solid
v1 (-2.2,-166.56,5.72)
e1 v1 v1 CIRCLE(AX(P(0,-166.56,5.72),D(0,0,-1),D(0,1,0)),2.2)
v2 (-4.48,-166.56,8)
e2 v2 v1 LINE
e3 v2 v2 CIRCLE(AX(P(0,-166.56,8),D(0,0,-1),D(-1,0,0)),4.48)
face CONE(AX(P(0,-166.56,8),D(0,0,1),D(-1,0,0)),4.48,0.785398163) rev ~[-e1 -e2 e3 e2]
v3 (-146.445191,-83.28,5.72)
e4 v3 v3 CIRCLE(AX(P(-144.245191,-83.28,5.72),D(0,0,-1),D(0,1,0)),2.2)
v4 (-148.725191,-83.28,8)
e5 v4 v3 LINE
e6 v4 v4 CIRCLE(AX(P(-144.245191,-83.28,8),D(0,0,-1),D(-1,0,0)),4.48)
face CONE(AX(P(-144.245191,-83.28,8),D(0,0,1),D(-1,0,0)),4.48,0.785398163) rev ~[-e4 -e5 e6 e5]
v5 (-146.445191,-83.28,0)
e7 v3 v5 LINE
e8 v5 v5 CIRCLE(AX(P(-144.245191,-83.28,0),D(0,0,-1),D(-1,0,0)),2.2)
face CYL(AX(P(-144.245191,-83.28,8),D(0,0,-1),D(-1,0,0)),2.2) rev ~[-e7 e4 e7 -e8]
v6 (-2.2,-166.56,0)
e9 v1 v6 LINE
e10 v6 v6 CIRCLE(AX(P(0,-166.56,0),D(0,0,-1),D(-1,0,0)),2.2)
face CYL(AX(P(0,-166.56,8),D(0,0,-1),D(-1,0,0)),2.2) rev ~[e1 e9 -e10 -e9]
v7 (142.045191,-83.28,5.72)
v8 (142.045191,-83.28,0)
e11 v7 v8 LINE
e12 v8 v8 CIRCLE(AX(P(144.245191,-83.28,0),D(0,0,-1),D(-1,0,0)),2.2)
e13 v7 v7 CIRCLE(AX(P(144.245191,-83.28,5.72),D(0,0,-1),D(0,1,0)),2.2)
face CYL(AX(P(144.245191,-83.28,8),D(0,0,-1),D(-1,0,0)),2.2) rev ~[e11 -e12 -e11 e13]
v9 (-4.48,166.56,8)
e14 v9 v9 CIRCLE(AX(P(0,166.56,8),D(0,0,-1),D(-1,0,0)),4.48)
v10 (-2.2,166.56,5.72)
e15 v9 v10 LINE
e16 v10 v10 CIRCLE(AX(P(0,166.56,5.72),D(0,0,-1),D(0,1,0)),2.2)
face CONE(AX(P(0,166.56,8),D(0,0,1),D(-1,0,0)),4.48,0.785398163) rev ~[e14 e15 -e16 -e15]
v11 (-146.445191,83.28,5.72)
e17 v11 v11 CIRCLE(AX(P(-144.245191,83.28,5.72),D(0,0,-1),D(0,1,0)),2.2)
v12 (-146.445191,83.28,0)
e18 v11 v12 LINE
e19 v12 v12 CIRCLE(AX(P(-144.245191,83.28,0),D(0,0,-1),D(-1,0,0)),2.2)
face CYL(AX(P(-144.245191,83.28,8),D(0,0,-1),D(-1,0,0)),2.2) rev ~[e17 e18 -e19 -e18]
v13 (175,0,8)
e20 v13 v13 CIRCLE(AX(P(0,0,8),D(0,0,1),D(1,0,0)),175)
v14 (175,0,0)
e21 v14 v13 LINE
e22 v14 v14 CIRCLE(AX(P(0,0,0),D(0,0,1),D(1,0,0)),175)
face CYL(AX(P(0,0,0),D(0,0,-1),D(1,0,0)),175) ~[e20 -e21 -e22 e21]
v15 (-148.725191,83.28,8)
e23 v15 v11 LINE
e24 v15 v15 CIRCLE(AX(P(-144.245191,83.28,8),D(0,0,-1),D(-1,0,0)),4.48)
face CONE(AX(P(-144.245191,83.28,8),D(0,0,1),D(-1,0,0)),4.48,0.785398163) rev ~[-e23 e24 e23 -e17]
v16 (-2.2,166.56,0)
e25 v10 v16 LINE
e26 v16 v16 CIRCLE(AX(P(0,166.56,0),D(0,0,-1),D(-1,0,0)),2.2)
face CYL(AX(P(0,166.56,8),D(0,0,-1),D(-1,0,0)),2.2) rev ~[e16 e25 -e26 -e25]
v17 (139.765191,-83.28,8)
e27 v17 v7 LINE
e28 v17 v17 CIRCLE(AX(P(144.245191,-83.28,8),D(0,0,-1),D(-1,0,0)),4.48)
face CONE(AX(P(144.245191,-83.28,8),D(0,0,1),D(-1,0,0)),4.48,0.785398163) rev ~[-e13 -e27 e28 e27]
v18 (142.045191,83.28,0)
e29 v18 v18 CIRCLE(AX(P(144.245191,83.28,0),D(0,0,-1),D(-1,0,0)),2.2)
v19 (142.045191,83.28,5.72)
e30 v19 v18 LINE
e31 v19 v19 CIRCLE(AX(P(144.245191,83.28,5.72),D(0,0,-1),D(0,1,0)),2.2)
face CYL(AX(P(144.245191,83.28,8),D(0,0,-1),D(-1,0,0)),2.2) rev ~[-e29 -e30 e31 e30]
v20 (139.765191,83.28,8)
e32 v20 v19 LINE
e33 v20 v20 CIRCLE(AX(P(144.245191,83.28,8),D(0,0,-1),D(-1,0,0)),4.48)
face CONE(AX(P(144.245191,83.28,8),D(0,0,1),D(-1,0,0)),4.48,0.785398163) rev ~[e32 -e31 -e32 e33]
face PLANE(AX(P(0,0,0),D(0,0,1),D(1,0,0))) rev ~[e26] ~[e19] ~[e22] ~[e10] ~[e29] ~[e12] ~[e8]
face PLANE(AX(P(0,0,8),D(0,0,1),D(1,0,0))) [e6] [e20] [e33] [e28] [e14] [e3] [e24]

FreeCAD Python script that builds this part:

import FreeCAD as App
import Part
import Sketcher
Q = App.Units.Quantity

doc = App.newDocument("Part")
body = doc.addObject("PartDesign::Body", "Body")

# Sketch on XY plane
sketch1 = doc.addObject("Sketcher::SketchObject", "Sketch")
body.addObject(sketch1)
sketch1.AttachmentSupport = (doc.XY_Plane, [""])
sketch1.MapMode = "FlatFace"
sketch1.addGeometry(Part.Circle(App.Vector(0, 0, 0), App.Vector(0, 0, 1), 175), False)
sketch1.addGeometry(Part.Circle(App.Vector(-144.2, -83.3, 0), App.Vector(0, 0, 1), 1.6), False)
sketch1.addGeometry(Part.Circle(App.Vector(0, -166.6, 0), App.Vector(0, 0, 1), 1.6), False)
sketch1.addGeometry(Part.Circle(App.Vector(144.2, -83.3, 0), App.Vector(0, 0, 1), 1.6), False)
sketch1.addGeometry(Part.Circle(App.Vector(-144.2, 83.3, 0), App.Vector(0, 0, 1), 1.6), False)
sketch1.addGeometry(Part.Circle(App.Vector(144.2, 83.3, 0), App.Vector(0, 0, 1), 1.6), False)
sketch1.addGeometry(Part.Circle(App.Vector(0, 166.6, 0), App.Vector(0, 0, 1), 1.6), False)
sketch1.addConstraint(Sketcher.Constraint("Coincident", 0, 3, -1, 1))
sketch1.addConstraint(Sketcher.Constraint("Equal", 1, 2))
sketch1.addConstraint(Sketcher.Constraint("Equal", 2, 3))
sketch1.addConstraint(Sketcher.Constraint("Equal", 3, 4))
sketch1.addConstraint(Sketcher.Constraint("Equal", 4, 5))
sketch1.addConstraint(Sketcher.Constraint("Equal", 5, 6))
sketch1.addConstraint(Sketcher.Constraint("Symmetric", 3, 3, 4, 3, -1, 1))
sketch1.addConstraint(Sketcher.Constraint("Symmetric", 1, 3, 5, 3, -1, 1))
sketch1.addConstraint(Sketcher.Constraint("Symmetric", 2, 3, 6, 3, -1, 1))
sketch1.addConstraint(Sketcher.Constraint("Symmetric", 1, 3, 3, 3, -2))
sketch1.addConstraint(Sketcher.Constraint("PointOnObject", 2, 3, -2))
sketch1.addConstraint(Sketcher.Constraint("Diameter", 0, Q("350 mm")))
sketch1.addConstraint(Sketcher.Constraint("Diameter", 1, Q("3.3 mm")))
sketch1.addConstraint(Sketcher.Constraint("DistanceY", 1, 3, -1, 1, Q("83.28 mm")))
sketch1.addConstraint(Sketcher.Constraint("DistanceY", 2, 3, -1, 1, Q("166.56 mm")))
sketch1.addConstraint(Sketcher.Constraint("DistanceX", 1, 3, -1, 1, Q("144.245191 mm")))
pad1 = doc.addObject("PartDesign::Pad", "Pad")
body.addObject(pad1)
pad1.Profile = sketch1
pad1.Length = 8

# Sketch on XY plane
sketch2 = doc.addObject("Sketcher::SketchObject", "Sketch001")
body.addObject(sketch2)
sketch2.AttachmentSupport = (doc.XY_Plane, [""])
sketch2.MapMode = "FlatFace"
sketch2.AttachmentOffset = App.Placement(App.Vector(0, 0, 8), App.Rotation())
sketch2.addGeometry(Part.Circle(App.Vector(-144.2, -83.3, 0), App.Vector(0, 0, 1), 2.2), False)
sketch2.addGeometry(Part.Circle(App.Vector(-144.2, 83.3, 0), App.Vector(0, 0, 1), 2.2), False)
sketch2.addGeometry(Part.Circle(App.Vector(0, 166.6, 0), App.Vector(0, 0, 1), 2.2), False)
sketch2.addGeometry(Part.Circle(App.Vector(144.2, 83.3, 0), App.Vector(0, 0, 1), 2.2), False)
sketch2.addGeometry(Part.Circle(App.Vector(144.2, -83.3, 0), App.Vector(0, 0, 1), 2.2), False)
sketch2.addGeometry(Part.Circle(App.Vector(0, -166.6, 0), App.Vector(0, 0, 1), 2.2), False)
sketch2.addConstraint(Sketcher.Constraint("Equal", 0, 1))
sketch2.addConstraint(Sketcher.Constraint("Equal", 1, 2))
sketch2.addConstraint(Sketcher.Constraint("Equal", 2, 3))
sketch2.addConstraint(Sketcher.Constraint("Equal", 3, 4))
sketch2.addConstraint(Sketcher.Constraint("Equal", 4, 5))
sketch2.addConstraint(Sketcher.Constraint("Symmetric", 0, 3, 3, 3, -1, 1))
sketch2.addConstraint(Sketcher.Constraint("Symmetric", 1, 3, 4, 3, -1, 1))
sketch2.addConstraint(Sketcher.Constraint("Symmetric", 2, 3, 5, 3, -1, 1))
sketch2.addConstraint(Sketcher.Constraint("Symmetric", 1, 3, 3, 3, -2))
sketch2.addConstraint(Sketcher.Constraint("PointOnObject", 2, 3, -2))
sketch2.addConstraint(Sketcher.Constraint("Diameter", 0, Q("4.4 mm")))
sketch2.addConstraint(Sketcher.Constraint("DistanceY", 0, 3, -1, 1, Q("83.28 mm")))
sketch2.addConstraint(Sketcher.Constraint("DistanceY", -1, 1, 2, 3, Q("166.56 mm")))
sketch2.addConstraint(Sketcher.Constraint("DistanceX", 0, 3, -1, 1, Q("144.245191 mm")))
doc.recompute()
hole = doc.addObject("PartDesign::Hole", "Hole")
body.addObject(hole)
hole.Profile = sketch2
hole.ThreadType = "None"
hole.Diameter = 4.4
hole.DepthType = "ThroughAll"
hole.HoleCutType = "Countersink"
hole.HoleCutDiameter = 8.96
hole.HoleCutCountersinkAngle = 90

doc.recompute()
